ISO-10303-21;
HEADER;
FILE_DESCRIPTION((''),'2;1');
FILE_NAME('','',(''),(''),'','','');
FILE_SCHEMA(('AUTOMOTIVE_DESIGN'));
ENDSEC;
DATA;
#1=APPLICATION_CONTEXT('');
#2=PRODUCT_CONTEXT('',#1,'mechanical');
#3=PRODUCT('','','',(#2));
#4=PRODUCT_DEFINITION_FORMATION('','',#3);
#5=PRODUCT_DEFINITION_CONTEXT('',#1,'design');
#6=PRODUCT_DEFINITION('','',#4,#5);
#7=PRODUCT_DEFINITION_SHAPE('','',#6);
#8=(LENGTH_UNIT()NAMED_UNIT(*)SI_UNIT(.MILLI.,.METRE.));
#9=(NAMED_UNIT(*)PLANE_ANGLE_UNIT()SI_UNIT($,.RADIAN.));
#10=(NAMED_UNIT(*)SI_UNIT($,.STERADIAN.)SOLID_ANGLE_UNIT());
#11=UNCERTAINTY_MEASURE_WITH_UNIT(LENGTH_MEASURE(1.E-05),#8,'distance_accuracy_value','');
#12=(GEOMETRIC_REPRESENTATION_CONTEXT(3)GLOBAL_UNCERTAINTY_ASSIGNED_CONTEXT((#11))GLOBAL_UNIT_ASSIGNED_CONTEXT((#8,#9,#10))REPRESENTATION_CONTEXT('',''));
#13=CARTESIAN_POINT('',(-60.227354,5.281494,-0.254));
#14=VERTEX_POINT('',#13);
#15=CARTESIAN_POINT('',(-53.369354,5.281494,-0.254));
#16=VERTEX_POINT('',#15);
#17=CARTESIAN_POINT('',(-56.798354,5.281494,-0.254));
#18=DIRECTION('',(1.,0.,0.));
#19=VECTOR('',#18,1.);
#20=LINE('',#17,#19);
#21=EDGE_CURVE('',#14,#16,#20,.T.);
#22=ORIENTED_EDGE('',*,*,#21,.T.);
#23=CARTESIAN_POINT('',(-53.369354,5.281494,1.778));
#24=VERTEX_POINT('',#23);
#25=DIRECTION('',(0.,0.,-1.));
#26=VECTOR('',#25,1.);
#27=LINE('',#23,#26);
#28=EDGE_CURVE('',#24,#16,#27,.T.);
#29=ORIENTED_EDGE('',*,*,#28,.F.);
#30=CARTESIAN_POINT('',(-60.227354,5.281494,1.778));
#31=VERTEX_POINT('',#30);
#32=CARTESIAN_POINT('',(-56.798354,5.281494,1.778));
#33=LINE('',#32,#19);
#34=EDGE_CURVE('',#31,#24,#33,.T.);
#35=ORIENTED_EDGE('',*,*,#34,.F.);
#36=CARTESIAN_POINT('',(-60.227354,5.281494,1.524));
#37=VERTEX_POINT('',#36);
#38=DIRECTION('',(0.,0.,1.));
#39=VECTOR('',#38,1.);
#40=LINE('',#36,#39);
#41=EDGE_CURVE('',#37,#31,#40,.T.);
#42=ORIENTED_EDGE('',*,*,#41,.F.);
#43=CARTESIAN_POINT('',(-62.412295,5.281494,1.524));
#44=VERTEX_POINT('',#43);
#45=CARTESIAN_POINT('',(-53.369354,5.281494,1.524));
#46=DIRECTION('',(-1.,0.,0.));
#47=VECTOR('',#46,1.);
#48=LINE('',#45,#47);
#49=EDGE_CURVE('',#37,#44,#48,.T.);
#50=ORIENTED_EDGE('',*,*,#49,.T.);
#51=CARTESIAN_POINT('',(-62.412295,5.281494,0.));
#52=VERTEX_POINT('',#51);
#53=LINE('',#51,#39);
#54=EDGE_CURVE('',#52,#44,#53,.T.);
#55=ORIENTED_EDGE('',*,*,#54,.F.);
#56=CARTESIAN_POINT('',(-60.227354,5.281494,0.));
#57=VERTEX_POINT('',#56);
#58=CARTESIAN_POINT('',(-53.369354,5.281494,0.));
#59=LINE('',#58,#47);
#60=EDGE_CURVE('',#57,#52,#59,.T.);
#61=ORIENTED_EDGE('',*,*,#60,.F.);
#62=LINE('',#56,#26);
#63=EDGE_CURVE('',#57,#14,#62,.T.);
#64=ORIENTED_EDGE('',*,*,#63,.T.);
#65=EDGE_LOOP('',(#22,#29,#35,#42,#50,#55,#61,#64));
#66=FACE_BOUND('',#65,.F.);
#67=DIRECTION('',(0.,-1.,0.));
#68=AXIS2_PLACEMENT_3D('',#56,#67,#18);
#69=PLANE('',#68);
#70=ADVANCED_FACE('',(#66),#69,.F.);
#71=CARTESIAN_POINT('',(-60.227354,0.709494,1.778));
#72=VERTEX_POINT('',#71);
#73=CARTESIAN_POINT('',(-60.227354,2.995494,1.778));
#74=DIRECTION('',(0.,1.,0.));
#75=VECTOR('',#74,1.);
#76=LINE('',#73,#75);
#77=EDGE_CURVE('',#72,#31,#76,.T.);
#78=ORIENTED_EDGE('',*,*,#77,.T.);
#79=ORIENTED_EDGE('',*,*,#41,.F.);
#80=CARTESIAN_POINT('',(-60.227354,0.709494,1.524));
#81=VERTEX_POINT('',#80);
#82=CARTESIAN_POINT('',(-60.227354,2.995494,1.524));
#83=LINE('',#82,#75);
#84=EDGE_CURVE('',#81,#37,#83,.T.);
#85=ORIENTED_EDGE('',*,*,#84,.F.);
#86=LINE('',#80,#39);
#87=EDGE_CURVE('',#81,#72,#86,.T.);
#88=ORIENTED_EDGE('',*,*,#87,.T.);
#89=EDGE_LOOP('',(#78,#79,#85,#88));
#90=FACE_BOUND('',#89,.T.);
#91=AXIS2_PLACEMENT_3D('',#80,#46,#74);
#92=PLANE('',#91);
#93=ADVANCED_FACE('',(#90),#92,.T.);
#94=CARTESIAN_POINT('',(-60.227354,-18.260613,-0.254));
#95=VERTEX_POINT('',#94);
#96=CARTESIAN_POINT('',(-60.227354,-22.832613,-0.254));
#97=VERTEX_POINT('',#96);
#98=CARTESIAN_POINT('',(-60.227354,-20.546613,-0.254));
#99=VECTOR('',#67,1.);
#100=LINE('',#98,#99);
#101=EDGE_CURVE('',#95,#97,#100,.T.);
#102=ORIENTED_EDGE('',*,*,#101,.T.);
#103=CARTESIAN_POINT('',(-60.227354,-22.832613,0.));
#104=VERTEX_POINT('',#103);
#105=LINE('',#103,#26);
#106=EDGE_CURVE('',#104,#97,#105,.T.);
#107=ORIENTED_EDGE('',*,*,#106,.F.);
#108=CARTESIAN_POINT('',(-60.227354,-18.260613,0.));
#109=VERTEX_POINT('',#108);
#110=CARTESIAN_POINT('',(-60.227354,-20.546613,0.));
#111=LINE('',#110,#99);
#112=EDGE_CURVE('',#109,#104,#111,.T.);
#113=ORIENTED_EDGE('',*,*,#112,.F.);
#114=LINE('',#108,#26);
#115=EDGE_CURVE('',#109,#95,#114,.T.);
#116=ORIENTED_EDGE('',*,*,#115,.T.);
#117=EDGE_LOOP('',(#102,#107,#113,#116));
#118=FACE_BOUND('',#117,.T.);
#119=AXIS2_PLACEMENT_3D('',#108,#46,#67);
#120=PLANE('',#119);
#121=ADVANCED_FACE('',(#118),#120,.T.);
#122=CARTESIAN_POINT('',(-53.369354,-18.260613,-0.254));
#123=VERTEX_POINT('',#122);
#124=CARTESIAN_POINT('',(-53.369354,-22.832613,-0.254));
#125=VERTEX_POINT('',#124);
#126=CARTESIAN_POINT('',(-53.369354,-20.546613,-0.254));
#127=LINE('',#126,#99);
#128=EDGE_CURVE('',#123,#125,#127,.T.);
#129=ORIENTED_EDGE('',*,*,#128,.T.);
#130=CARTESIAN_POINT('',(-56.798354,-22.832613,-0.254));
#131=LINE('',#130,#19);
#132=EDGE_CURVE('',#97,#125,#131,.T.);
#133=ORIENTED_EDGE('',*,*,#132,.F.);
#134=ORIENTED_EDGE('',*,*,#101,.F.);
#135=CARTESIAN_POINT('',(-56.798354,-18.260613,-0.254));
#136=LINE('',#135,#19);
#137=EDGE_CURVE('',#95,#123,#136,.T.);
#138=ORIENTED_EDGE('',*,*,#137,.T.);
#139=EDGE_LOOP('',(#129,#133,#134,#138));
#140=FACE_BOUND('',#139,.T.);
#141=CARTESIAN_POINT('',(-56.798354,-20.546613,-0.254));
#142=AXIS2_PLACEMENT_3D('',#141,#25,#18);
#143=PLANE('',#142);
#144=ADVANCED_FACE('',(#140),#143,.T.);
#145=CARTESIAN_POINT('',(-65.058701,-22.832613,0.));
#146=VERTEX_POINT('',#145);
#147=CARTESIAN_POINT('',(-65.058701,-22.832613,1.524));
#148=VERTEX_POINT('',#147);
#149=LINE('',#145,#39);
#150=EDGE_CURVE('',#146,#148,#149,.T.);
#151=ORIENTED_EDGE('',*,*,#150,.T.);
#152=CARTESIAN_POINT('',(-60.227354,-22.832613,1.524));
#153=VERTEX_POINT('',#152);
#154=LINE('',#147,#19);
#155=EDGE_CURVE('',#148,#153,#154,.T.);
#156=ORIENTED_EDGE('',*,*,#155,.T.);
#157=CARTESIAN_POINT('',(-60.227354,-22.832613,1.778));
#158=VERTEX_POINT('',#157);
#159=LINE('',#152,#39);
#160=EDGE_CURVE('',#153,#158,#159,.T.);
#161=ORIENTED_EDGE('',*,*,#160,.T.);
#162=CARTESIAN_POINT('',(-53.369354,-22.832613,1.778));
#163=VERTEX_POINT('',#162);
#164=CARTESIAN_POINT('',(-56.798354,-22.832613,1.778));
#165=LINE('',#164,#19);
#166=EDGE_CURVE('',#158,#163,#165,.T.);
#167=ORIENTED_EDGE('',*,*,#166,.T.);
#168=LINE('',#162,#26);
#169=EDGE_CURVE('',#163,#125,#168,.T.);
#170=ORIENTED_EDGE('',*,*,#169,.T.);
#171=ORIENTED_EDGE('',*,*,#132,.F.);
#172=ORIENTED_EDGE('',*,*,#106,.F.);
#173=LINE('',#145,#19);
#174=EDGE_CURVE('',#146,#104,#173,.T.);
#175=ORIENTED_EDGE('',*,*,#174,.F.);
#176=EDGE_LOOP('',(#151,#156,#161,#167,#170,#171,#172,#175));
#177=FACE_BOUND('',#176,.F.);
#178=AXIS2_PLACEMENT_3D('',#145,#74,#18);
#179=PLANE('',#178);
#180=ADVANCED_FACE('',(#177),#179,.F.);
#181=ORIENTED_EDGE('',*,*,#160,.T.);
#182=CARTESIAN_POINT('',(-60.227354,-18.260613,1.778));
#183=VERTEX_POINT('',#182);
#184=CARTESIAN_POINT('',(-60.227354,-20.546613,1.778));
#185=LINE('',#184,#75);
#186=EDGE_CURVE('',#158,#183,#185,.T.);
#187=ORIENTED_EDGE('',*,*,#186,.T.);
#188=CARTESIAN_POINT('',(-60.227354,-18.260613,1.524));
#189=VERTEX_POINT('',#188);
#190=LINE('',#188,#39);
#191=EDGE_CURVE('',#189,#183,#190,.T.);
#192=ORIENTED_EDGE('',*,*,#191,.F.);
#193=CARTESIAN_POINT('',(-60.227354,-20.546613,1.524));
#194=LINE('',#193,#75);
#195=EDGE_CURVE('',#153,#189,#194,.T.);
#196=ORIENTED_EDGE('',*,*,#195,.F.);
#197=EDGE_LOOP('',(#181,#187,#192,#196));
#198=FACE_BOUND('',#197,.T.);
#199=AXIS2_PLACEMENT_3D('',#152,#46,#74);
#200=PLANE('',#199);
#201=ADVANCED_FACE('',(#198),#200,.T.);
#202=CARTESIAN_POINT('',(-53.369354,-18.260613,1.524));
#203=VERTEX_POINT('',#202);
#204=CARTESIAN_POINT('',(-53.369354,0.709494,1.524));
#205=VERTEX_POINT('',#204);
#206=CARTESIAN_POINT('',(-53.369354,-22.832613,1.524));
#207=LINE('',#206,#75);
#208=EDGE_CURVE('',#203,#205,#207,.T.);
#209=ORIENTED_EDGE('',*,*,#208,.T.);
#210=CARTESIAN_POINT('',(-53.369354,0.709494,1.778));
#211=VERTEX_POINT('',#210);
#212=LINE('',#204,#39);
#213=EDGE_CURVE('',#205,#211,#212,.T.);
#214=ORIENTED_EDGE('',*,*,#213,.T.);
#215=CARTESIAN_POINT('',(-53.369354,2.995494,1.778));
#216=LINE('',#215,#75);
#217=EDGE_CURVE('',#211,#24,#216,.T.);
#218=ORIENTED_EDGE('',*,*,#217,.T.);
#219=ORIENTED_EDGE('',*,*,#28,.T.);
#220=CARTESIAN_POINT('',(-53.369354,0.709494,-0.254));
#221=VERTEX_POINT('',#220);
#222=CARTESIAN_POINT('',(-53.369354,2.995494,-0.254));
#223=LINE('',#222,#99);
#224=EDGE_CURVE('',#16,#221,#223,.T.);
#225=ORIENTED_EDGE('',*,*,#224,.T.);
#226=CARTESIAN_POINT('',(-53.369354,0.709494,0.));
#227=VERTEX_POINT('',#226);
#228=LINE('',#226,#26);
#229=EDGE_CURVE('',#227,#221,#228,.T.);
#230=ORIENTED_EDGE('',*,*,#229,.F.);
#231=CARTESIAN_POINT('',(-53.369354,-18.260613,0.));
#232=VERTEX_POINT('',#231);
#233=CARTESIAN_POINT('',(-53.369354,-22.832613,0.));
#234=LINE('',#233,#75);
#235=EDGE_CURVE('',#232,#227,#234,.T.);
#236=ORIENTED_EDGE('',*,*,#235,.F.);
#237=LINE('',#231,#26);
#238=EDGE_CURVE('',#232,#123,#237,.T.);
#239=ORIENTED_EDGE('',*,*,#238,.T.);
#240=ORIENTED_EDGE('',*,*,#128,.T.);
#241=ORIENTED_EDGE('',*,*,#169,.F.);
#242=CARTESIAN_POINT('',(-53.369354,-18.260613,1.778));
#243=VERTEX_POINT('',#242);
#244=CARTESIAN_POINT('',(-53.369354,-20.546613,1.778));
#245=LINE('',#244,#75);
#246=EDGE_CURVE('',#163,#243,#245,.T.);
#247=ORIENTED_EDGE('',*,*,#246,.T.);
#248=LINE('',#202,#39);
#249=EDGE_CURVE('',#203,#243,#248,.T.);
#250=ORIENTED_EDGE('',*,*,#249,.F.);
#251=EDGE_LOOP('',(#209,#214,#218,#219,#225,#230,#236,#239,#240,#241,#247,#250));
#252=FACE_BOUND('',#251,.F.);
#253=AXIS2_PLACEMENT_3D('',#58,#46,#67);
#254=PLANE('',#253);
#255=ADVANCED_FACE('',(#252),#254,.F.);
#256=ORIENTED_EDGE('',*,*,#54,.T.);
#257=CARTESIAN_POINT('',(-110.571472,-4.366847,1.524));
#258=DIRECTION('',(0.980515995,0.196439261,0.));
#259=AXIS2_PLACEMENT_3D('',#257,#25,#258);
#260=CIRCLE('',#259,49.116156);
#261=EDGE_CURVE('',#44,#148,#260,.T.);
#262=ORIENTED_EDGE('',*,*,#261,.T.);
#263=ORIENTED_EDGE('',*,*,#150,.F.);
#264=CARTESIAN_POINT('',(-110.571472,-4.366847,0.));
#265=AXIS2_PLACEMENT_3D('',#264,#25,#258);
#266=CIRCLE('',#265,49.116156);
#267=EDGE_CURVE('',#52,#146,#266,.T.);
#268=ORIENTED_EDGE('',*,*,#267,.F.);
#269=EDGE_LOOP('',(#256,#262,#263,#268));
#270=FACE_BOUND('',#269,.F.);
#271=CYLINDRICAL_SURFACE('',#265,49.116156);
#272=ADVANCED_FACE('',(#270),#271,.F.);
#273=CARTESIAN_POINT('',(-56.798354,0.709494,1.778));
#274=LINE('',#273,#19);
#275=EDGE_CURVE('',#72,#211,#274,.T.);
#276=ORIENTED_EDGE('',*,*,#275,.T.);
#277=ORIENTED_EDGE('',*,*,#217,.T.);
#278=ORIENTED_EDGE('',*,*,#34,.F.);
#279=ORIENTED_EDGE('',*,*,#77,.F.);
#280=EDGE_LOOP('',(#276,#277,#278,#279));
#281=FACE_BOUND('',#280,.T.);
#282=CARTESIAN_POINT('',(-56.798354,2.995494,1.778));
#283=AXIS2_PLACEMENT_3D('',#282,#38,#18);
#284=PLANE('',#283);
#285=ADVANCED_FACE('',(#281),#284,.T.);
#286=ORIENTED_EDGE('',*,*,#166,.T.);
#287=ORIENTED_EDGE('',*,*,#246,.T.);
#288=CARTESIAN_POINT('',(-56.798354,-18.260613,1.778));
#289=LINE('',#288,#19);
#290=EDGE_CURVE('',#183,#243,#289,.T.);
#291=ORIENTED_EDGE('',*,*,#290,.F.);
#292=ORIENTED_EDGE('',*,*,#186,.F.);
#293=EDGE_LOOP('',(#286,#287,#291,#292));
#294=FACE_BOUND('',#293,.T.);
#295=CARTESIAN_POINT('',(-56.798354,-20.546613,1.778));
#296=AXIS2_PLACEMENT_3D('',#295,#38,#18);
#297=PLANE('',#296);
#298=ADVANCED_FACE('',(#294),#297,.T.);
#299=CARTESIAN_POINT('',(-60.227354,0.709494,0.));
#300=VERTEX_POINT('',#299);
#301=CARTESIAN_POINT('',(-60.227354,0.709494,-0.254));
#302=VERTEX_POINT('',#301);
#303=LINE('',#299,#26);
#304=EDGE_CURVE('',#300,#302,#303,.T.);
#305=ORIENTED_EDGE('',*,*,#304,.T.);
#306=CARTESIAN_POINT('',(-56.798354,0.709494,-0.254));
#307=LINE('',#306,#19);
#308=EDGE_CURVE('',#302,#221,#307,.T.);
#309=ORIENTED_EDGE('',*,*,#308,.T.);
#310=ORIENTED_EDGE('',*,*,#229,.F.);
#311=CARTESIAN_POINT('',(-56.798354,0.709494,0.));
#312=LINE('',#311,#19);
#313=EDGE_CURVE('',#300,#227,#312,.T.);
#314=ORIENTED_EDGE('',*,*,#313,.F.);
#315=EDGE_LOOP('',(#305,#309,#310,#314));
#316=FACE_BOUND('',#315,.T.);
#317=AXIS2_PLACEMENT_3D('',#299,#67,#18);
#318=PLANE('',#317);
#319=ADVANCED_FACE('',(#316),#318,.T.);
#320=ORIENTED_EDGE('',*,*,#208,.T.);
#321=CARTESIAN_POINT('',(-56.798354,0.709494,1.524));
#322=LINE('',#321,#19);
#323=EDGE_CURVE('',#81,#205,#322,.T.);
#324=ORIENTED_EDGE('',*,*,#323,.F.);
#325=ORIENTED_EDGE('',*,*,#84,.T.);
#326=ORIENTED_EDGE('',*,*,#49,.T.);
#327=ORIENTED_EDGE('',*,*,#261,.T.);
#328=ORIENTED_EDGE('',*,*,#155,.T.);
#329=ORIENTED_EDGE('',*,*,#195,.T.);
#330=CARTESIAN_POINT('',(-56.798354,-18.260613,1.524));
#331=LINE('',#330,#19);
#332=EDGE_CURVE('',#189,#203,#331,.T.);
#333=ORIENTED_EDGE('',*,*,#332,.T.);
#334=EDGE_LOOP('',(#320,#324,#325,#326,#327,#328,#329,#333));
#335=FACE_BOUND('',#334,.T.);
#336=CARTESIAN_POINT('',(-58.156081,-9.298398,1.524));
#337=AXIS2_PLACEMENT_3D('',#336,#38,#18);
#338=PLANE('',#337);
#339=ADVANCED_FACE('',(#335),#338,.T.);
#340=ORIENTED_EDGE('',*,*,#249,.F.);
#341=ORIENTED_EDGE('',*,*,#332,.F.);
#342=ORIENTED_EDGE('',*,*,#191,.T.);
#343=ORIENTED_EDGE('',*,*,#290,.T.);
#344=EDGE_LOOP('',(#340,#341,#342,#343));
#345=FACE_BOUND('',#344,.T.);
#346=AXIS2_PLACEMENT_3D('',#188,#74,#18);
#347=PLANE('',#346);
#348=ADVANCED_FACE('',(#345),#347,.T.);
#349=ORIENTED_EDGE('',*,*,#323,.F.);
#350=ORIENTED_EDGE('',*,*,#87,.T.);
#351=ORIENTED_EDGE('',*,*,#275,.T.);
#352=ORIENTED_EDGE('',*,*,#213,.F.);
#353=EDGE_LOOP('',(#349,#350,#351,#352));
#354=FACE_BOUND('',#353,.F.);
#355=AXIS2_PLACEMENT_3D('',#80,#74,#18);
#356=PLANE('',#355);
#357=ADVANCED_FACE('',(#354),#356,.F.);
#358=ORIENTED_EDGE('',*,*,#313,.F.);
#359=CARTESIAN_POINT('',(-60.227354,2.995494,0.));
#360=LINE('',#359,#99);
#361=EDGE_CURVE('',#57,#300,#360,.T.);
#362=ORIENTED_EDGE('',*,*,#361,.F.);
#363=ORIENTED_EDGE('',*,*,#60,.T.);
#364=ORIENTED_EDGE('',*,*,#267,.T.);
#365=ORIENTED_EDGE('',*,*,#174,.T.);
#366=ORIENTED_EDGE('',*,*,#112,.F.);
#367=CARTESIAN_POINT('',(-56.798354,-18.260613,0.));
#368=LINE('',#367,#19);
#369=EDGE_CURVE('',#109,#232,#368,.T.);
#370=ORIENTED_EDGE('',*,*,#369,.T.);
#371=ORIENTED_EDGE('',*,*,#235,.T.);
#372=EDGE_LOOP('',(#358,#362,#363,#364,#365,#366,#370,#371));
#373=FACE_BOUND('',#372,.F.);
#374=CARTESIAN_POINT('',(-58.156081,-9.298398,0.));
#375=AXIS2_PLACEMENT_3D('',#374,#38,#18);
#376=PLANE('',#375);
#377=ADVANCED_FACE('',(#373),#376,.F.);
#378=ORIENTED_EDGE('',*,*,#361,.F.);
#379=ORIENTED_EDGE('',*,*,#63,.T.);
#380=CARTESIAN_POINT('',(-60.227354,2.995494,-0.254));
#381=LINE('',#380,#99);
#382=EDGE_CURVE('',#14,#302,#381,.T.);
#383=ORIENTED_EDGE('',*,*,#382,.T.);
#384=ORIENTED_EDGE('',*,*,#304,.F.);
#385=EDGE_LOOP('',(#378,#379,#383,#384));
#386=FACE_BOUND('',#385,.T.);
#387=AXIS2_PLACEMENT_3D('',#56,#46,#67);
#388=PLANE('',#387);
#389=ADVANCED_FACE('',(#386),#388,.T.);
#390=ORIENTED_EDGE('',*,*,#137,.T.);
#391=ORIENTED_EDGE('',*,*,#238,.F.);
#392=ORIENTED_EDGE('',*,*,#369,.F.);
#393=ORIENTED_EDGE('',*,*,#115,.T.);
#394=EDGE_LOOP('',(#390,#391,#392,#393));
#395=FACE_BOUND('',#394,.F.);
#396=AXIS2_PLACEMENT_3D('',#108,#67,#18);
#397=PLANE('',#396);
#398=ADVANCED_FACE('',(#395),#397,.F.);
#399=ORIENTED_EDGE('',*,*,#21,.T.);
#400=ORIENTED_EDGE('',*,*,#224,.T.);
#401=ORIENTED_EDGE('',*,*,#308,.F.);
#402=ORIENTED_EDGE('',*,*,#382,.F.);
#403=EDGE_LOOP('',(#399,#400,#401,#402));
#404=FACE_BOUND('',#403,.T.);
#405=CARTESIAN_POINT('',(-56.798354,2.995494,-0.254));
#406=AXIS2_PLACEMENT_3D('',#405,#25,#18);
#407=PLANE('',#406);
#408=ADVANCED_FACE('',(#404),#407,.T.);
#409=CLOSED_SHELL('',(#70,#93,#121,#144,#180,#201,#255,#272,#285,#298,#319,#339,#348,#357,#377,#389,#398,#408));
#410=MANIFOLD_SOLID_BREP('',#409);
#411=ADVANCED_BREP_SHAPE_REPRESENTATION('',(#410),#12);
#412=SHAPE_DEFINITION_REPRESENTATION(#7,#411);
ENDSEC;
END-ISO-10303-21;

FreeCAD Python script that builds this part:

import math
import FreeCAD as App
import Part
import Sketcher
Q = App.Units.Quantity

doc = App.newDocument("Part")
body = doc.addObject("PartDesign::Body", "Body")

sketch1 = body.newObject("Sketcher::SketchObject", "Sketch")
sketch1.AttachmentSupport = (doc.getObject("XY_Plane"), [""])
sketch1.MapMode = "FlatFace"
sketch1.addGeometry([
    Part.LineSegment(App.Vector(-53, -23, 0), App.Vector(-53, 5, 0)),
    Part.LineSegment(App.Vector(-53, 5, 0), App.Vector(-62, 5, 0)),
    Part.ArcOfCircle(Part.Circle(App.Vector(-111, -4, 0), App.Vector(0, 0, 1), 49), math.radians(-22), math.radians(11)),
    Part.LineSegment(App.Vector(-65, -23, 0), App.Vector(-53, -23, 0)),
], False)
sketch1.addConstraint([
    Sketcher.Constraint("Coincident", 0, 2, 1, 1),
    Sketcher.Constraint("Coincident", 1, 2, 2, 2),
    Sketcher.Constraint("Coincident", 2, 1, 3, 1),
    Sketcher.Constraint("Coincident", 3, 2, 0, 1),
    Sketcher.Constraint("Vertical", 0),
    Sketcher.Constraint("Horizontal", 1),
    Sketcher.Constraint("Horizontal", 3),
    Sketcher.Constraint("Radius", 2, 49.116156),
    Sketcher.Constraint("DistanceX", 1, 2, 1, 1, 9.042941),
    Sketcher.Constraint("DistanceX", 2, 1, -1, 1, 65.058701),
    Sketcher.Constraint("DistanceX", 3, 1, 3, 2, 11.689347),
    Sketcher.Constraint("DistanceY", 0, 1, 0, 2, 28.114107),
    Sketcher.Constraint("DistanceY", 2, 3, -1, 1, 4.366847),
])
pad1 = body.newObject("PartDesign::Pad", "Pad")
pad1.Profile = sketch1
pad1.Length = Q("0.06 in")

sketch2 = body.newObject("Sketcher::SketchObject", "Sketch001")
sketch2.AttachmentSupport = (doc.getObject("XY_Plane"), [""])
sketch2.MapMode = "FlatFace"
sketch2.AttachmentOffset = App.Placement(App.Vector(0, 0, 0.06 * 25.4), App.Rotation())
sketch2.addGeometry([
    Part.LineSegment(App.Vector(-60.2, 5.3, 0), App.Vector(-60.2, 0.7, 0)),
    Part.LineSegment(App.Vector(-60.2, 0.7, 0), App.Vector(-53.4, 0.7, 0)),
    Part.LineSegment(App.Vector(-53.4, 0.7, 0), App.Vector(-53.4, 5.3, 0)),
    Part.LineSegment(App.Vector(-53.4, 5.3, 0), App.Vector(-60.2, 5.3, 0)),
    Part.LineSegment(App.Vector(-60.2, -18.3, 0), App.Vector(-60.2, -22.8, 0)),
    Part.LineSegment(App.Vector(-60.2, -22.8, 0), App.Vector(-53.4, -22.8, 0)),
    Part.LineSegment(App.Vector(-53.4, -22.8, 0), App.Vector(-53.4, -18.3, 0)),
    Part.LineSegment(App.Vector(-53.4, -18.3, 0), App.Vector(-60.2, -18.3, 0)),
], False)
sketch2.addConstraint([
    Sketcher.Constraint("Coincident", 0, 2, 1, 1),
    Sketcher.Constraint("Coincident", 1, 2, 2, 1),
    Sketcher.Constraint("Coincident", 2, 2, 3, 1),
    Sketcher.Constraint("Coincident", 3, 2, 0, 1),
    Sketcher.Constraint("Coincident", 4, 2, 5, 1),
    Sketcher.Constraint("Coincident", 5, 2, 6, 1),
    Sketcher.Constraint("Coincident", 6, 2, 7, 1),
    Sketcher.Constraint("Coincident", 7, 2, 4, 1),
    Sketcher.Constraint("Vertical", 0),
    Sketcher.Constraint("Horizontal", 1),
    Sketcher.Constraint("Vertical", 2),
    Sketcher.Constraint("Horizontal", 3),
    Sketcher.Constraint("Vertical", 4),
    Sketcher.Constraint("Horizontal", 5),
    Sketcher.Constraint("Vertical", 6),
    Sketcher.Constraint("Horizontal", 7),
    Sketcher.Constraint("Vertical", 3, 2, 4, 2),
    Sketcher.Constraint("Vertical", 2, 2, 5, 2),
    Sketcher.Constraint("Equal", 2, 4),
    Sketcher.Constraint("DistanceX", 1, 1, 1, 2, Q("0.27 in")),
    Sketcher.Constraint("DistanceY", 0, 2, 0, 1, Q("0.18 in")),
    Sketcher.Constraint("DistanceX", 0, 2, -1, 1, 60.227354),
    Sketcher.Constraint("DistanceY", -1, 1, 0, 2, 0.709494),
    Sketcher.Constraint("DistanceY", 4, 2, -1, 1, 22.832613),
])
pad2 = body.newObject("PartDesign::Pad", "Pad001")
pad2.Profile = sketch2
pad2.Length = Q("0.01 in")

sketch3 = body.newObject("Sketcher::SketchObject", "Sketch002")
sketch3.AttachmentSupport = (doc.getObject("XY_Plane"), [""])
sketch3.MapMode = "FlatFace"
sketch3.addGeometry([
    Part.LineSegment(App.Vector(-60.2, 0.7, 0), App.Vector(-60.2, 5.3, 0)),
    Part.LineSegment(App.Vector(-60.2, 5.3, 0), App.Vector(-53.4, 5.3, 0)),
    Part.LineSegment(App.Vector(-53.4, 5.3, 0), App.Vector(-53.4, 0.7, 0)),
    Part.LineSegment(App.Vector(-53.4, 0.7, 0), App.Vector(-60.2, 0.7, 0)),
    Part.LineSegment(App.Vector(-60.2, -22.8, 0), App.Vector(-60.2, -18.3, 0)),
    Part.LineSegment(App.Vector(-60.2, -18.3, 0), App.Vector(-53.4, -18.3, 0)),
    Part.LineSegment(App.Vector(-53.4, -18.3, 0), App.Vector(-53.4, -22.8, 0)),
    Part.LineSegment(App.Vector(-53.4, -22.8, 0), App.Vector(-60.2, -22.8, 0)),
], False)
sketch3.addConstraint([
    Sketcher.Constraint("Coincident", 0, 2, 1, 1),
    Sketcher.Constraint("Coincident", 1, 2, 2, 1),
    Sketcher.Constraint("Coincident", 2, 2, 3, 1),
    Sketcher.Constraint("Coincident", 3, 2, 0, 1),
    Sketcher.Constraint("Coincident", 4, 2, 5, 1),
    Sketcher.Constraint("Coincident", 5, 2, 6, 1),
    Sketcher.Constraint("Coincident", 6, 2, 7, 1),
    Sketcher.Constraint("Coincident", 7, 2, 4, 1),
    Sketcher.Constraint("Vertical", 0),
    Sketcher.Constraint("Horizontal", 1),
    Sketcher.Constraint("Vertical", 2),
    Sketcher.Constraint("Horizontal", 3),
    Sketcher.Constraint("Vertical", 4),
    Sketcher.Constraint("Horizontal", 5),
    Sketcher.Constraint("Vertical", 6),
    Sketcher.Constraint("Horizontal", 7),
    Sketcher.Constraint("Vertical", 3, 2, 4, 2),
    Sketcher.Constraint("Vertical", 2, 2, 5, 2),
    Sketcher.Constraint("Equal", 2, 4),
    Sketcher.Constraint("DistanceX", 1, 1, 1, 2, Q("0.27 in")),
    Sketcher.Constraint("DistanceY", 0, 1, 0, 2, Q("0.18 in")),
    Sketcher.Constraint("DistanceX", 0, 2, -1, 1, 60.227354),
    Sketcher.Constraint("DistanceY", -1, 1, 0, 2, 5.281494),
    Sketcher.Constraint("DistanceY", 4, 2, -1, 1, 18.260613),
])
pad3 = body.newObject("PartDesign::Pad", "Pad002")
pad3.Profile = sketch3
pad3.Length = Q("0.01 in")
pad3.Reversed = True

doc.recompute()
